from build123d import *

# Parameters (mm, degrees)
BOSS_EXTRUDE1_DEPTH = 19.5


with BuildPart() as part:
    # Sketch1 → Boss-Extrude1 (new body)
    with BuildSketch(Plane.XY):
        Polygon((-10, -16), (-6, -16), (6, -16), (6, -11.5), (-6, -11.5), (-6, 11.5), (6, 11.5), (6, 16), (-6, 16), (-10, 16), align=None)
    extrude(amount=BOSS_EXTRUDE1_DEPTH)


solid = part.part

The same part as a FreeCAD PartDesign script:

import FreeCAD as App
import Part
import Sketcher


def add_polygon(sketch, points):
    """Adds a closed chain of lines whose ends are joined by coincident constraints."""
    first, n = sketch.GeometryCount, len(points)
    for a, b in zip(points, points[1:] + points[:1]):
        sketch.addGeometry(Part.LineSegment(App.Vector(*a, 0), App.Vector(*b, 0)), False)
    for i in range(n):
        sketch.addConstraint(Sketcher.Constraint("Coincident", first + i, 2, first + (i + 1) % n, 1))

doc = App.newDocument("Part")
body = doc.addObject("PartDesign::Body", "Body")

# Sketch on XY plane
sketch1 = body.newObject("Sketcher::SketchObject", "Sketch")
sketch1.AttachmentSupport = (doc.getObject("XY_Plane"), [""])
sketch1.MapMode = "FlatFace"
add_polygon(sketch1, [(-10, -16), (6, -16), (6, -11.5), (-6, -11.5), (-6, 11.5), (6, 11.5), (6, 16), (-10, 16)])  # lines 0-7
sketch1.addConstraint(Sketcher.Constraint("Horizontal", 0))
sketch1.addConstraint(Sketcher.Constraint("Vertical", 1))
sketch1.addConstraint(Sketcher.Constraint("Horizontal", 2))
sketch1.addConstraint(Sketcher.Constraint("Vertical", 3))
sketch1.addConstraint(Sketcher.Constraint("Horizontal", 4))
sketch1.addConstraint(Sketcher.Constraint("Vertical", 5))
sketch1.addConstraint(Sketcher.Constraint("Horizontal", 6))
sketch1.addConstraint(Sketcher.Constraint("Vertical", 7))
sketch1.addConstraint(Sketcher.Constraint("Symmetric", 1, 2, 3, 2, -1, 1))
sketch1.addConstraint(Sketcher.Constraint("Symmetric", 0, 2, 5, 2, -1))
sketch1.addConstraint(Sketcher.Constraint("DistanceX", 0, 1, 0, 2, 16.0))
sketch1.addConstraint(Sketcher.Constraint("DistanceX", 2, 2, 2, 1, 12.0))
sketch1.addConstraint(Sketcher.Constraint("DistanceY", 3, 1, 3, 2, 23.0))
sketch1.addConstraint(Sketcher.Constraint("DistanceY", 7, 2, 7, 1, 32.0))
pad1 = body.newObject("PartDesign::Pad", "Pad")
pad1.Profile = sketch1
pad1.Length = 19.5

doc.recompute()
